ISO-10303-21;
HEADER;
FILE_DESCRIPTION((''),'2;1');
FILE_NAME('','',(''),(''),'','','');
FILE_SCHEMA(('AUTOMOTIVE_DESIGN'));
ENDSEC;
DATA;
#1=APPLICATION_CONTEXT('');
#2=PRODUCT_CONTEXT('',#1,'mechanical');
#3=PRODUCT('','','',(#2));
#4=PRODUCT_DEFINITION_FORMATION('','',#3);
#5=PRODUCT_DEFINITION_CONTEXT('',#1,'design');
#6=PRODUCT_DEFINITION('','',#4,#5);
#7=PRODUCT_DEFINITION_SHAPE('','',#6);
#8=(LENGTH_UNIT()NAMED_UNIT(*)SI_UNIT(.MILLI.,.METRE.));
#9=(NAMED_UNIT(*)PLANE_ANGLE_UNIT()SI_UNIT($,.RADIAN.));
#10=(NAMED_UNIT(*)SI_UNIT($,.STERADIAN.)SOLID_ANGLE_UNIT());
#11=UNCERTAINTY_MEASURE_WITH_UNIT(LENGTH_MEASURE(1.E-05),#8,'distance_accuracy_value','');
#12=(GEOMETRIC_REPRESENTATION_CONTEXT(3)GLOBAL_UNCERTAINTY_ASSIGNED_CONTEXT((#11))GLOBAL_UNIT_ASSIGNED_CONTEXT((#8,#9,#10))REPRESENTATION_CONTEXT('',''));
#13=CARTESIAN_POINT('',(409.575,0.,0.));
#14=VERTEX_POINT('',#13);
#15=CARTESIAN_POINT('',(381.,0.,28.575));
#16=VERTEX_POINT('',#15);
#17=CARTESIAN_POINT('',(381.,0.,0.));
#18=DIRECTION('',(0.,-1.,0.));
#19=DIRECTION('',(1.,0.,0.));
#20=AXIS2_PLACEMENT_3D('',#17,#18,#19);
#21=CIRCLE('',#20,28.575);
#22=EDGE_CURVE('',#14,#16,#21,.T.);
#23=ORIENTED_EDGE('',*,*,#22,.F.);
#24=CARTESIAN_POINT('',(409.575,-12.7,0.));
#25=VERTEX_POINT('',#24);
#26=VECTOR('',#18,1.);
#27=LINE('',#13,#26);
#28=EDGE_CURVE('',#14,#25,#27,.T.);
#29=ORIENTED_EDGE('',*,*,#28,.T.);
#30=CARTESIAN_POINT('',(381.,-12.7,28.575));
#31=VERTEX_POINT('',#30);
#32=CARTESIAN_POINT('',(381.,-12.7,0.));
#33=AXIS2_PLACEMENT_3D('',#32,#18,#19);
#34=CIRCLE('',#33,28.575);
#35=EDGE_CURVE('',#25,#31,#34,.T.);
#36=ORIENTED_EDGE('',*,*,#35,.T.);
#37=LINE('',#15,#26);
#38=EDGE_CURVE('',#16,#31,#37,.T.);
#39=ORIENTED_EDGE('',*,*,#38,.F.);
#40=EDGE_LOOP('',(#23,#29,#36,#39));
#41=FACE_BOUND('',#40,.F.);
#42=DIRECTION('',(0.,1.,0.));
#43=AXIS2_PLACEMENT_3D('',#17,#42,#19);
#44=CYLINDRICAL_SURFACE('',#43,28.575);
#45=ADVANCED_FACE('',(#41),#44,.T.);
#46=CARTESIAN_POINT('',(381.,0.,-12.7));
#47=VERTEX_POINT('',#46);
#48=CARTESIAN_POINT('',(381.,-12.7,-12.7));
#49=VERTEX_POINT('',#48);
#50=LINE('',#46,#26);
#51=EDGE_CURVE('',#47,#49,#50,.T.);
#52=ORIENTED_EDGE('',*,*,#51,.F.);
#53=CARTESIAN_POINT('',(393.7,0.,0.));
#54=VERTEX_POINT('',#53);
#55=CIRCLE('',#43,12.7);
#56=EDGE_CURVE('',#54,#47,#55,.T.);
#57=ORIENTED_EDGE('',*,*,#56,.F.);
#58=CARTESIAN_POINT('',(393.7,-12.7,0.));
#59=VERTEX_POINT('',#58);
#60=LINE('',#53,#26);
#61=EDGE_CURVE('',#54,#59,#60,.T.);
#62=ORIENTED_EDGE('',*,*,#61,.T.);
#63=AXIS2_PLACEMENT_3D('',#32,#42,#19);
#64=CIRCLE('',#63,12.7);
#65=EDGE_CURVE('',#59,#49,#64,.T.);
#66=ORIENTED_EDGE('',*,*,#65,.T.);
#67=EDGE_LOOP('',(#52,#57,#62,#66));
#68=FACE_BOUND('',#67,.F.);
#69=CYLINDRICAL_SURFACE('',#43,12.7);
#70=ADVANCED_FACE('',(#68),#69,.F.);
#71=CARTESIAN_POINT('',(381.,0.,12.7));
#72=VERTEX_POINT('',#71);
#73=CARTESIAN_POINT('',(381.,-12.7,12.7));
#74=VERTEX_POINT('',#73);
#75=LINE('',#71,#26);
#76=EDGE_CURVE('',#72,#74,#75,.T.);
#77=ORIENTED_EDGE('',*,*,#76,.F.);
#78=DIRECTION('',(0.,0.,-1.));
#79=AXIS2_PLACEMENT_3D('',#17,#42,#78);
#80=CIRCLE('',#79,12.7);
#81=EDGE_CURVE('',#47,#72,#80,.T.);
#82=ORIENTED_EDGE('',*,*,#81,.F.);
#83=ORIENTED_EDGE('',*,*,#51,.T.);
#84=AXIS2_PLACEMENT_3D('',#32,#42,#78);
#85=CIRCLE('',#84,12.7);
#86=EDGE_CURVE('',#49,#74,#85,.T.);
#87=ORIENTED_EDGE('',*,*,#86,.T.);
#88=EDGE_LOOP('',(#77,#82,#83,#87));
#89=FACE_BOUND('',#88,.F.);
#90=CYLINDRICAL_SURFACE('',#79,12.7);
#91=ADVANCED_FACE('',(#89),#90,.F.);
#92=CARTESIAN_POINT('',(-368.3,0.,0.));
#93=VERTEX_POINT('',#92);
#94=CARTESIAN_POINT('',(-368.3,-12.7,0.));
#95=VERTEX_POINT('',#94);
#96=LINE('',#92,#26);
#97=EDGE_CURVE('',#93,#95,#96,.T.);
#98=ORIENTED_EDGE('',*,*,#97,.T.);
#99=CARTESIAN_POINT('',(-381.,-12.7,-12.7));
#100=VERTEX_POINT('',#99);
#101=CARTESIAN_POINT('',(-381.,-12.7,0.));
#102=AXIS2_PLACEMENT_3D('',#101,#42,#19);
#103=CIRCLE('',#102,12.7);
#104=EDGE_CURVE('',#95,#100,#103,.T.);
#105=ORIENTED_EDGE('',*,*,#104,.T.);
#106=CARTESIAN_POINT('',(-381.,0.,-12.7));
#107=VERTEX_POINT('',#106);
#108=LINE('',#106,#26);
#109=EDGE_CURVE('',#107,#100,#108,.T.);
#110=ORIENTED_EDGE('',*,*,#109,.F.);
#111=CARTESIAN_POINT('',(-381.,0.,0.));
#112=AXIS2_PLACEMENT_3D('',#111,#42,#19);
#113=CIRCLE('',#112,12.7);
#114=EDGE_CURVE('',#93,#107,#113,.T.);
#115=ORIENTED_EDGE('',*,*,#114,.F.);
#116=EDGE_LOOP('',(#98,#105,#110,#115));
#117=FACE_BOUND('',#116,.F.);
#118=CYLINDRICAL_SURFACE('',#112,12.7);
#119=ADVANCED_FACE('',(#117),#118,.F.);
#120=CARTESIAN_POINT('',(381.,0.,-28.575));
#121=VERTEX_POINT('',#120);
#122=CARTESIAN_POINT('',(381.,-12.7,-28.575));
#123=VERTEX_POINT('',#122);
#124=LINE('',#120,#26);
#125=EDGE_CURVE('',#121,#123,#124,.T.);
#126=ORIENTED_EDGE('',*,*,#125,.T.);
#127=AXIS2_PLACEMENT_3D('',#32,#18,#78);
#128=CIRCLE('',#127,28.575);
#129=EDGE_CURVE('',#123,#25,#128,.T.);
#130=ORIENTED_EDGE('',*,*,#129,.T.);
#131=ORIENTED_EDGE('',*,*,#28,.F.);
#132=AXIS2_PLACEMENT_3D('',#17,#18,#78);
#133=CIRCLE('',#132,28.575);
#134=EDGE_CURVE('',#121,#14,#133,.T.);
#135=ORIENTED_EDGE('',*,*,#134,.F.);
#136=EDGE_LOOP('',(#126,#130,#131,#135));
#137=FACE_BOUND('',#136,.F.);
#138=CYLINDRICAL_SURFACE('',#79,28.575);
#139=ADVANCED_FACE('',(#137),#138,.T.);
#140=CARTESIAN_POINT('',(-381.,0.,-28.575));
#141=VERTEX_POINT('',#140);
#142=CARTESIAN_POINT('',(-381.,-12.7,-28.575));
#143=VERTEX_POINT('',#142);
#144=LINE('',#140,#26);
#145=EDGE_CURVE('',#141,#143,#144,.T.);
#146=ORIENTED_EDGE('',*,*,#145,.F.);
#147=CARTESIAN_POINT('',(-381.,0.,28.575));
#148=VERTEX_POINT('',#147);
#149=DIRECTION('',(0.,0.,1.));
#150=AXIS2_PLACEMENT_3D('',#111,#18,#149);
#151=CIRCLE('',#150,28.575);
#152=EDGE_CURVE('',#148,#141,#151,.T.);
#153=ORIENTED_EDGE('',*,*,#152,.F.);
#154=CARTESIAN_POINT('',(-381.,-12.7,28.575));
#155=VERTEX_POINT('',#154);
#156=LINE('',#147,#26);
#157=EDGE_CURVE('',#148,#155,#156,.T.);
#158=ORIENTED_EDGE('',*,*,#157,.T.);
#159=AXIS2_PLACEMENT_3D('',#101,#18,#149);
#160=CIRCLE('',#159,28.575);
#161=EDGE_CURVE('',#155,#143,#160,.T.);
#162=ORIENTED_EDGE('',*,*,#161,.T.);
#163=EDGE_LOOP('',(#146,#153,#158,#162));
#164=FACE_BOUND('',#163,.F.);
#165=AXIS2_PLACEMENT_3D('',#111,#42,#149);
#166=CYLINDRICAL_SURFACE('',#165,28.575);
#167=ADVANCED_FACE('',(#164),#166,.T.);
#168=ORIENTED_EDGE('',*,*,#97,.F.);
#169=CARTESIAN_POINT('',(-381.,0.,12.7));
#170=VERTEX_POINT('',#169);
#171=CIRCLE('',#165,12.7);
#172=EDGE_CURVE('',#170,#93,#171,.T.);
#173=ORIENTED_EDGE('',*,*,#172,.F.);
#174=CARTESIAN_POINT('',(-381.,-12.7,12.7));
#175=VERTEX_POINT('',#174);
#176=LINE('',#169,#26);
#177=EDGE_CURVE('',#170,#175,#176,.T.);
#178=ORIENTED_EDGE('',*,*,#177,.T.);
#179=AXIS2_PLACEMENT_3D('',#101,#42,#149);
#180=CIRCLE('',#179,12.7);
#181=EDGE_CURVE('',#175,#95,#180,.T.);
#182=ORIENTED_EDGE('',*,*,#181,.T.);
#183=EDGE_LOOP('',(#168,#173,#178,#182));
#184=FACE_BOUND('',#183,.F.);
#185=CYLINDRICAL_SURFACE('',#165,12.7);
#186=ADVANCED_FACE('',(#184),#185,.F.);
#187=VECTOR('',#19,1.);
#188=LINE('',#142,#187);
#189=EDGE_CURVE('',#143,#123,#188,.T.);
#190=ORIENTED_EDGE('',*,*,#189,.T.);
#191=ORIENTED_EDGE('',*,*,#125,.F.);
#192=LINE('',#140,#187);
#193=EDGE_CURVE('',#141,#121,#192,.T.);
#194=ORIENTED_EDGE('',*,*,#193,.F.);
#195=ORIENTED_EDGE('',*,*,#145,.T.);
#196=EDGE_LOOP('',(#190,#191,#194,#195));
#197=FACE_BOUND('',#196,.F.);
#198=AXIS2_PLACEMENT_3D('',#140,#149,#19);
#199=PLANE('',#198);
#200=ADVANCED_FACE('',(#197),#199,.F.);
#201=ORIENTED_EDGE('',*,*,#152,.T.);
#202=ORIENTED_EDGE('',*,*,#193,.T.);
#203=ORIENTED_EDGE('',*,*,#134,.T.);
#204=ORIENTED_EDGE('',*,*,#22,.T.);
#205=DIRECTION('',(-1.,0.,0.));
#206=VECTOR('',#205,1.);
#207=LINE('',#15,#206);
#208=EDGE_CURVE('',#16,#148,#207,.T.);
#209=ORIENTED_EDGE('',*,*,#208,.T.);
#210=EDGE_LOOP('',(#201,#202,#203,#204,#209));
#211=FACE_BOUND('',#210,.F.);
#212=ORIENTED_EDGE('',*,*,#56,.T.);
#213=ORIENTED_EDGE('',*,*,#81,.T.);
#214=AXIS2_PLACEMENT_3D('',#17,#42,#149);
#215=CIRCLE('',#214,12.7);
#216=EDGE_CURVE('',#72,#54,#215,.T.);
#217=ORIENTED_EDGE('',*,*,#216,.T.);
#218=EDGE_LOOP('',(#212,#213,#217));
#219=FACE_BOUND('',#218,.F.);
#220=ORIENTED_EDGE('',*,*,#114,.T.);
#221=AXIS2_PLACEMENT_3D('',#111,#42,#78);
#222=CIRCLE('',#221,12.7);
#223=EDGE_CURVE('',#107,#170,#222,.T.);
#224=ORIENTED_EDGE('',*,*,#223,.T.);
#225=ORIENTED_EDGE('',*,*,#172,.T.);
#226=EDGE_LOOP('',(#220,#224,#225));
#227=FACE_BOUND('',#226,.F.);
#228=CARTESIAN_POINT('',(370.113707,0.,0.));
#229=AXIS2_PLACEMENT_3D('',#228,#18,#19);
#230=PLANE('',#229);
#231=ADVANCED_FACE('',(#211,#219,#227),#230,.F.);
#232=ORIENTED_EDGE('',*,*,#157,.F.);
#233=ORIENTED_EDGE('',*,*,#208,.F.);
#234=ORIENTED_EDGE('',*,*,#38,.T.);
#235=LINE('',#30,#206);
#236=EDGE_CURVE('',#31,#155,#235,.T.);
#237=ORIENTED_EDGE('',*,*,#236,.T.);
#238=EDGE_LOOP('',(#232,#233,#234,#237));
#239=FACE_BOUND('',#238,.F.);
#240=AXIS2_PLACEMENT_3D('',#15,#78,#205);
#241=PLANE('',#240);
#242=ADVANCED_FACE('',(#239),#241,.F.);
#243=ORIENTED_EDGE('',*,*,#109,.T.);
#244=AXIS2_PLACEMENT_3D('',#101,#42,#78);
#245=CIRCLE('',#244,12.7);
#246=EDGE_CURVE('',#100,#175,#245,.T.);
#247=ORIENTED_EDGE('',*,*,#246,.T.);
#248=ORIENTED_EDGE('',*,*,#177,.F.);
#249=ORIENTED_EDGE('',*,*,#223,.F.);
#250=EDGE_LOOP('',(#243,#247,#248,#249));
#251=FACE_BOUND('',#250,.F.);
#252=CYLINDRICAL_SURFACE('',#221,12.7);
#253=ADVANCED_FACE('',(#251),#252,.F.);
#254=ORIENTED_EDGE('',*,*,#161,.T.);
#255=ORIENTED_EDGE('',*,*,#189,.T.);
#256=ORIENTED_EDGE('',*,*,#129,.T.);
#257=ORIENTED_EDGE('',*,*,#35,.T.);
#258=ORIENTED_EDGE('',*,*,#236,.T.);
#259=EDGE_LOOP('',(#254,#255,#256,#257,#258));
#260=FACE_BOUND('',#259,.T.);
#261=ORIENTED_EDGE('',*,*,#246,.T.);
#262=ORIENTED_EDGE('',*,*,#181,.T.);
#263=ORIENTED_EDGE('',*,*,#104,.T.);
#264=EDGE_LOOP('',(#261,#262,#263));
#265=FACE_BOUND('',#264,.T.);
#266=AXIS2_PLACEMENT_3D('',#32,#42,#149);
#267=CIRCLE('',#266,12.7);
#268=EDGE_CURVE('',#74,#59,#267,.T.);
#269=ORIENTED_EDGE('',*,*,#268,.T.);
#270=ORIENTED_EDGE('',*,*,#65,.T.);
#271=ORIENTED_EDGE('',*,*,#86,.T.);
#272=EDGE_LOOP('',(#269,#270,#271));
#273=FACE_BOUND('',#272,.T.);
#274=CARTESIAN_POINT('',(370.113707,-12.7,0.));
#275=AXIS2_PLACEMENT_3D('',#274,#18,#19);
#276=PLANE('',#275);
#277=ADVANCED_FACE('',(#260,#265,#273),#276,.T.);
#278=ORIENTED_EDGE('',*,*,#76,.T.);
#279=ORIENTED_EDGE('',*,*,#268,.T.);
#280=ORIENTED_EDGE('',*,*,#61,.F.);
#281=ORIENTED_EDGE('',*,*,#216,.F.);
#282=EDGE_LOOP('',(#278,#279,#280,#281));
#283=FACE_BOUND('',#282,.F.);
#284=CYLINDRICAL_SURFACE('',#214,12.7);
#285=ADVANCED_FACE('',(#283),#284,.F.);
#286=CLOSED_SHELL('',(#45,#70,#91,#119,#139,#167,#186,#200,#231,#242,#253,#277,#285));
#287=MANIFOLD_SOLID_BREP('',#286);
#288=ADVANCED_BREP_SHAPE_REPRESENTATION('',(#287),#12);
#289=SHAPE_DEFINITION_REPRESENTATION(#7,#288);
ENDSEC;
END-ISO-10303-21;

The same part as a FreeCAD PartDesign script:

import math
import FreeCAD as App
import Part
import Sketcher
from FreeCAD import Vector
Q = App.Units.Quantity

doc = App.newDocument("Part")
params = doc.addObject("Spreadsheet::Sheet", "Params")
for row, (alias, value) in enumerate([
    ("sketch1_radius", "0.5 in"),
    ("sketch1_width", "30 in"),
    ("sketch1_radius2", "1.125 in"),
    ("pad1_length", "0.5 in"),
], start=1):
    params.set(f"A{row}", alias)
    params.set(f"B{row}", "=" + value)
    params.setAlias(f"B{row}", alias)

body = doc.addObject("PartDesign::Body", "Body")

# Sketch on XZ plane
sketch1 = body.newObject("Sketcher::SketchObject", "Sketch")
sketch1.AttachmentSupport = (doc.getObject("XZ_Plane"), [""])
sketch1.MapMode = "FlatFace"
sketch1.addGeometry(Part.LineSegment(Vector(381, 29, 0), Vector(-381, 29, 0)), False)
sketch1.addGeometry(Part.ArcOfCircle(Part.Circle(Vector(-381, 0, 0), Vector(0, 0, 1), 29), math.radians(90), math.radians(270)), False)
sketch1.addGeometry(Part.LineSegment(Vector(-381, -29, 0), Vector(381, -29, 0)), False)
sketch1.addGeometry(Part.ArcOfCircle(Part.Circle(Vector(381, 0, 0), Vector(0, 0, 1), 29), math.radians(-90), math.radians(0)), False)
sketch1.addGeometry(Part.ArcOfCircle(Part.Circle(Vector(381, 0, 0), Vector(0, 0, 1), 29), math.radians(0), math.radians(90)), False)
sketch1.addGeometry(Part.ArcOfCircle(Part.Circle(Vector(381, 0, 0), Vector(0, 0, 1), 13), math.radians(90), math.radians(270)), False)
sketch1.addGeometry(Part.ArcOfCircle(Part.Circle(Vector(381, 0, 0), Vector(0, 0, 1), 13), math.radians(0), math.radians(90)), False)
sketch1.addGeometry(Part.ArcOfCircle(Part.Circle(Vector(381, 0, 0), Vector(0, 0, 1), 13), math.radians(-90), math.radians(0)), False)
sketch1.addGeometry(Part.ArcOfCircle(Part.Circle(Vector(-381, 0, 0), Vector(0, 0, 1), 13), math.radians(0), math.radians(90)), False)
sketch1.addGeometry(Part.ArcOfCircle(Part.Circle(Vector(-381, 0, 0), Vector(0, 0, 1), 13), math.radians(-90), math.radians(0)), False)
sketch1.addGeometry(Part.ArcOfCircle(Part.Circle(Vector(-381, 0, 0), Vector(0, 0, 1), 13), math.radians(90), math.radians(270)), False)
sketch1.addConstraint(Sketcher.Constraint("Tangent", 0, 2, 1, 1))
sketch1.addConstraint(Sketcher.Constraint("Tangent", 1, 2, 2, 1))
sketch1.addConstraint(Sketcher.Constraint("Tangent", 2, 2, 3, 1))
sketch1.addConstraint(Sketcher.Constraint("Tangent", 3, 2, 4, 1))
sketch1.addConstraint(Sketcher.Constraint("Tangent", 4, 2, 0, 1))
sketch1.addConstraint(Sketcher.Constraint("Tangent", 5, 1, 6, 2))
sketch1.addConstraint(Sketcher.Constraint("Tangent", 6, 1, 7, 2))
sketch1.addConstraint(Sketcher.Constraint("Tangent", 7, 1, 5, 2))
sketch1.addConstraint(Sketcher.Constraint("Tangent", 8, 1, 9, 2))
sketch1.addConstraint(Sketcher.Constraint("Tangent", 9, 1, 10, 2))
sketch1.addConstraint(Sketcher.Constraint("Tangent", 10, 1, 8, 2))
sketch1.addConstraint(Sketcher.Constraint("Horizontal", 0))
sketch1.addConstraint(Sketcher.Constraint("Horizontal", 2))
sketch1.addConstraint(Sketcher.Constraint("Coincident", 5, 3, 3, 3))
sketch1.addConstraint(Sketcher.Constraint("Coincident", 8, 3, 1, 3))
sketch1.addConstraint(Sketcher.Constraint("Equal", 1, 3))
sketch1.addConstraint(Sketcher.Constraint("Equal", 7, 8))
sketch1.addConstraint(Sketcher.Constraint("Symmetric", 1, 3, 3, 3, -1, 1))
sketch1.addConstraint(Sketcher.Constraint("PointOnObject", 3, 2, -1))
sketch1.addConstraint(Sketcher.Constraint("PointOnObject", 6, 1, -1))
sketch1.addConstraint(Sketcher.Constraint("PointOnObject", 8, 1, -1))
sketch1.addConstraint(Sketcher.Constraint("Vertical", 4, 2, 5, 1))
sketch1.addConstraint(Sketcher.Constraint("Vertical", 5, 1, 7, 1))
sketch1.addConstraint(Sketcher.Constraint("Vertical", 1, 2, 9, 1))
sketch1.addConstraint(Sketcher.Constraint("Vertical", 9, 1, 10, 1))
sketch1.addConstraint(Sketcher.Constraint("Radius", 5, Q("0.5 in")))
sketch1.addConstraint(Sketcher.Constraint("DistanceX", 0, 2, 0, 1, Q("30 in")))
sketch1.addConstraint(Sketcher.Constraint("Radius", 1, Q("1.125 in")))
sketch1.setExpression("Constraints[25]", "Params.sketch1_radius")
sketch1.setExpression("Constraints[26]", "Params.sketch1_width")
sketch1.setExpression("Constraints[27]", "Params.sketch1_radius2")
pad1 = body.newObject("PartDesign::Pad", "Pad")
pad1.Profile = sketch1
pad1.setExpression("Length", "Params.pad1_length")

doc.recompute()
